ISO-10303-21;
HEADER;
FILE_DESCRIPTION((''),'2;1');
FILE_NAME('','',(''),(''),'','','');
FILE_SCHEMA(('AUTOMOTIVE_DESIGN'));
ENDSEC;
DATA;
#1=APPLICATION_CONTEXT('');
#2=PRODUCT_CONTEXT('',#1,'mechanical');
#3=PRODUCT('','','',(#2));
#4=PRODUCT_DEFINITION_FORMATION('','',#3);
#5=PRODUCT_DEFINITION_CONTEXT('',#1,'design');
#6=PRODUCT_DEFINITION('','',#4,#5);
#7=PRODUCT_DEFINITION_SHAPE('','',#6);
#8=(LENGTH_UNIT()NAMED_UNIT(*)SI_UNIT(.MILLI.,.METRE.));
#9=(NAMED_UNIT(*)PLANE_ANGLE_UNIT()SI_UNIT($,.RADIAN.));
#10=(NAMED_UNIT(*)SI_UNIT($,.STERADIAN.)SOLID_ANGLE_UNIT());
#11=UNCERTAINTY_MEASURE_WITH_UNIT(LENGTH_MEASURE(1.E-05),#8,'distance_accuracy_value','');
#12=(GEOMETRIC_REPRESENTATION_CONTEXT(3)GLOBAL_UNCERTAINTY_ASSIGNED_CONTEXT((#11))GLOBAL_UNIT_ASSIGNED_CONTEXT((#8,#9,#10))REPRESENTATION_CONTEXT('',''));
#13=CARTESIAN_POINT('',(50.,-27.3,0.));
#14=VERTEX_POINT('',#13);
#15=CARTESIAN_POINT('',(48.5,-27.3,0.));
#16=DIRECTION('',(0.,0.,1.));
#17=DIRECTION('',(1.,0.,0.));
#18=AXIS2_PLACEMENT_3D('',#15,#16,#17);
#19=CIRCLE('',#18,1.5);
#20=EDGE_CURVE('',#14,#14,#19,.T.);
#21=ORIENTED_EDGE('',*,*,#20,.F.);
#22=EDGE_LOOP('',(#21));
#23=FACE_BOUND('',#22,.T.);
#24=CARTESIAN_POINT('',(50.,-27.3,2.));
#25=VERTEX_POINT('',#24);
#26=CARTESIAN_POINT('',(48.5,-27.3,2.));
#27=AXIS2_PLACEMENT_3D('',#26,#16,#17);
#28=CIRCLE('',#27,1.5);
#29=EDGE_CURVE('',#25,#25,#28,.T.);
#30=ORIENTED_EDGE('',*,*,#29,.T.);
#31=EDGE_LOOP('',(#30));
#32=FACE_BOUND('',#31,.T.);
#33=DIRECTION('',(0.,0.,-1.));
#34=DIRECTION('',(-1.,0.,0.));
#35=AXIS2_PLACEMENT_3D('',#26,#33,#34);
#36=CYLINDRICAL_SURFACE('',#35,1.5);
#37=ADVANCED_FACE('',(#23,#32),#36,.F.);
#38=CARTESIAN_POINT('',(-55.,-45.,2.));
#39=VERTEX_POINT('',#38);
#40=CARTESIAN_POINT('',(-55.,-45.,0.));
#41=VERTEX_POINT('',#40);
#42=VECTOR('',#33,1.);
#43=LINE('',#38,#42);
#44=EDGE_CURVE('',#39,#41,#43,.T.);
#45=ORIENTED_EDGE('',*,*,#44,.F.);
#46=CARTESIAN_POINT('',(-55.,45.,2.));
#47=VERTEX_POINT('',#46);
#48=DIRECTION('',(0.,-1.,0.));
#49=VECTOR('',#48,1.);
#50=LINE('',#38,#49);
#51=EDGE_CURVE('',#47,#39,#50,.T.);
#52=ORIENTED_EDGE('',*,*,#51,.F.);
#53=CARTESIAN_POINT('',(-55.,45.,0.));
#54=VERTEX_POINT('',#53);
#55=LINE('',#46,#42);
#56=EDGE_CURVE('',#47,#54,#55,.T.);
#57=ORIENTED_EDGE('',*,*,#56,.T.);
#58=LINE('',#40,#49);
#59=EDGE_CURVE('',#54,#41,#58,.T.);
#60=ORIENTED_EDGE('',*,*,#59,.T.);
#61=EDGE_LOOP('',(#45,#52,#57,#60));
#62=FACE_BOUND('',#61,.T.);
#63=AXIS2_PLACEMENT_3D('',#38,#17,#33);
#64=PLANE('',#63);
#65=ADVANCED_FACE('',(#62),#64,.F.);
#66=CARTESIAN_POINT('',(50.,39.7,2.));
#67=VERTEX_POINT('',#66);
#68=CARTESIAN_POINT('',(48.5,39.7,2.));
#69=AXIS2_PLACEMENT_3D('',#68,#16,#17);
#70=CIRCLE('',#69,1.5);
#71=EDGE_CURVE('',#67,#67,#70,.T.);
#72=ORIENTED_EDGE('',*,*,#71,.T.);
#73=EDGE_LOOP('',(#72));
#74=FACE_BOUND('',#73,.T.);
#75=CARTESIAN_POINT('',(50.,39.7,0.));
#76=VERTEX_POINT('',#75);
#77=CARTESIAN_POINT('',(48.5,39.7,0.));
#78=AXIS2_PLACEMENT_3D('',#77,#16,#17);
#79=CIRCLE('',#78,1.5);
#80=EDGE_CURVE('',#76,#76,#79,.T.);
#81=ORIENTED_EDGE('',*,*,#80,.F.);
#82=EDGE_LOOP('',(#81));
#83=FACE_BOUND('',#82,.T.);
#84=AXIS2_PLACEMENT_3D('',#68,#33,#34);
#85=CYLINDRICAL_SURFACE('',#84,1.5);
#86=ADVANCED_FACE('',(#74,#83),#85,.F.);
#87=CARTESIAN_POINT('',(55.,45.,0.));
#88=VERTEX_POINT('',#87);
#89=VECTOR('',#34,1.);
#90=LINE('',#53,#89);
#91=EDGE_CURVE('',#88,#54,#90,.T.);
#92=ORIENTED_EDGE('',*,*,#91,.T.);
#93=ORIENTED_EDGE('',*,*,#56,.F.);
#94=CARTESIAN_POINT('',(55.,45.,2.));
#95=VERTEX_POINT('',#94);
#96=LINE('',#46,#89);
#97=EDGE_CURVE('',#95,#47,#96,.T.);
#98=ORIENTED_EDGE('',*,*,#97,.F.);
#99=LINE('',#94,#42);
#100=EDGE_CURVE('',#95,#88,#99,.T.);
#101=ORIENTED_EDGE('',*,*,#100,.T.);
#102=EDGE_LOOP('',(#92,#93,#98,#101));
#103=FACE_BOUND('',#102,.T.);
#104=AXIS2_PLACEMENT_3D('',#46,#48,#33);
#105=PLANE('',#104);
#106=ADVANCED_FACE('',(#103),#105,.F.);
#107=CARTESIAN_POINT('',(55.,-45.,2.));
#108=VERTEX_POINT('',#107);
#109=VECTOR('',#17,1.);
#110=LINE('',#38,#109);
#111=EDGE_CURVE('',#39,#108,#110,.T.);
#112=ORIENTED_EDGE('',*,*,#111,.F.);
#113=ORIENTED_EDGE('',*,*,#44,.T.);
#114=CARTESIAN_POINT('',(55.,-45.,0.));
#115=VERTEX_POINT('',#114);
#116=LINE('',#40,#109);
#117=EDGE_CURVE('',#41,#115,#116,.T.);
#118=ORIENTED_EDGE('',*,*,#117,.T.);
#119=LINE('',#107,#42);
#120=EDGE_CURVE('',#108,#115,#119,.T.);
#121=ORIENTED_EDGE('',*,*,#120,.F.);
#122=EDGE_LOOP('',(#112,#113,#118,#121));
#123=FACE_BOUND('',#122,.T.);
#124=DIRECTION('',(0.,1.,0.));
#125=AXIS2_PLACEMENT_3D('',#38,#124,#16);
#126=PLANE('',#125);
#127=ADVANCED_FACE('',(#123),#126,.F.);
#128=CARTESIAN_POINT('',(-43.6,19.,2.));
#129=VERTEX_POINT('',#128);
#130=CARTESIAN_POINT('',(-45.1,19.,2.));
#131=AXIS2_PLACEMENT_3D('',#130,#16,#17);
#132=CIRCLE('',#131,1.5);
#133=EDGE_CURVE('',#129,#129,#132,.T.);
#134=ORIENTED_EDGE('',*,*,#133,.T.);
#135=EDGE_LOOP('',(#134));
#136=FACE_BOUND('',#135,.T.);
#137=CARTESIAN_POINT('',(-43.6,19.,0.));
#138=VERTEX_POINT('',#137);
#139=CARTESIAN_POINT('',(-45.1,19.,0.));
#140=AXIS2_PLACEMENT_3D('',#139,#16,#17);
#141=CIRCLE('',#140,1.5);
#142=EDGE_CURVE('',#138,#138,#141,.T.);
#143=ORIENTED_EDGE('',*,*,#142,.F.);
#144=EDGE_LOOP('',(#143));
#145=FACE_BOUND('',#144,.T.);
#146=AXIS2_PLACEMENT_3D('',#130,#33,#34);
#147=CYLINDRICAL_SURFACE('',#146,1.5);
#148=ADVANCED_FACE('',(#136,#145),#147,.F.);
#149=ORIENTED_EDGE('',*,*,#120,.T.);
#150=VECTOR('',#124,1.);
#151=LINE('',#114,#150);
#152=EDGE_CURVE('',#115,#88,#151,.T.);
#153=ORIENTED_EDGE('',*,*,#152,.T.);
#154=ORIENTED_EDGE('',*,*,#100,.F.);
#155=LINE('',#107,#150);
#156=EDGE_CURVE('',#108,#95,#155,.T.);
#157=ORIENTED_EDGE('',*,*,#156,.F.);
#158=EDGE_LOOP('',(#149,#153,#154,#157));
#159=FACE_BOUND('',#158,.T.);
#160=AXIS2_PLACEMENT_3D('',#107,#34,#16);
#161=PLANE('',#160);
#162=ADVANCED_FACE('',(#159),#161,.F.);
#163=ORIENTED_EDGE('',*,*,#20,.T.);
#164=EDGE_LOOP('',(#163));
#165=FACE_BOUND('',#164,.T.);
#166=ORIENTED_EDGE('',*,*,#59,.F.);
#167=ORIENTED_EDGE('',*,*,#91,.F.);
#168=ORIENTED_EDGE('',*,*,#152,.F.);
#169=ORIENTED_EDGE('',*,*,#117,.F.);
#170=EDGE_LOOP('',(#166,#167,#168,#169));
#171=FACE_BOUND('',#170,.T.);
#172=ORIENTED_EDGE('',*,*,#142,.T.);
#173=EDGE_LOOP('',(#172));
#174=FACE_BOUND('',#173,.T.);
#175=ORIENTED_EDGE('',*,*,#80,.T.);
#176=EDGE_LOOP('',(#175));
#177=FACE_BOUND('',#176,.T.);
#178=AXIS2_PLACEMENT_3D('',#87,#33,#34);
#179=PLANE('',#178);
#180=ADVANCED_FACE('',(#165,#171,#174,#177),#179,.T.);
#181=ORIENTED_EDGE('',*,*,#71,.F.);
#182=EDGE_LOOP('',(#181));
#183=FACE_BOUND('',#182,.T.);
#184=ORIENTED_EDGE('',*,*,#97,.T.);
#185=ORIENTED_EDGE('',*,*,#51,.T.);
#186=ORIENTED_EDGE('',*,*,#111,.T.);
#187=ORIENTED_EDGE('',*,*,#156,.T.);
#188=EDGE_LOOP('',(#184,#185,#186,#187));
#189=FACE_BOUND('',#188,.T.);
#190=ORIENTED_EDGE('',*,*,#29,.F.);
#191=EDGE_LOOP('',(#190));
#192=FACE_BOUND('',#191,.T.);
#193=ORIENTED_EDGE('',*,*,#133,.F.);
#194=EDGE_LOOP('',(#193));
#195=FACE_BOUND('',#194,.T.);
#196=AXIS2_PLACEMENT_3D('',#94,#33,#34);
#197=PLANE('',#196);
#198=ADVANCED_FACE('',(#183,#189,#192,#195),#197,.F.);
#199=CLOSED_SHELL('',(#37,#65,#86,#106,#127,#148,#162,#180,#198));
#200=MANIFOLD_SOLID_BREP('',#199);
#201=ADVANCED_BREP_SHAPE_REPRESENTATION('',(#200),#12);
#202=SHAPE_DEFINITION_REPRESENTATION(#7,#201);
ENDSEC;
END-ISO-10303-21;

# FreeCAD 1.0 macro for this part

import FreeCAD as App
import Part
import Sketcher

V = App.Vector


def add_polygon(sketch, points):
    """Adds a closed chain of lines whose ends are joined by coincident constraints."""
    first, n = sketch.GeometryCount, len(points)
    for a, b in zip(points, points[1:] + points[:1]):
        sketch.addGeometry(Part.LineSegment(App.Vector(*a, 0), App.Vector(*b, 0)), False)
    for i in range(n):
        sketch.addConstraint(Sketcher.Constraint("Coincident", first + i, 2, first + (i + 1) % n, 1))

doc = App.newDocument("Part")
body = doc.addObject("PartDesign::Body", "Body")

# Sketch on XY plane
sketch1 = body.newObject("Sketcher::SketchObject", "Sketch")
sketch1.AttachmentSupport = (doc.getObject("XY_Plane"), [""])
sketch1.MapMode = "FlatFace"
add_polygon(sketch1, [(-55, 45), (-55, -45), (55, -45), (55, 45)])  # lines 0-3
sketch1.addGeometry(Part.Circle(V(48.5, -27.3, 0), V(0, 0, 1), 1.5), False)  # 4
sketch1.addGeometry(Part.Circle(V(-45.1, 19, 0), V(0, 0, 1), 1.5), False)  # 5
sketch1.addGeometry(Part.Circle(V(48.5, 39.7, 0), V(0, 0, 1), 1.5), False)  # 6
sketch1.addConstraint(Sketcher.Constraint("Vertical", 0))
sketch1.addConstraint(Sketcher.Constraint("Horizontal", 1))
sketch1.addConstraint(Sketcher.Constraint("Vertical", 2))
sketch1.addConstraint(Sketcher.Constraint("Horizontal", 3))
sketch1.addConstraint(Sketcher.Constraint("Equal", 4, 5))
sketch1.addConstraint(Sketcher.Constraint("Equal", 5, 6))
sketch1.addConstraint(Sketcher.Constraint("Symmetric", 0, 2, 2, 2, -1, 1))
sketch1.addConstraint(Sketcher.Constraint("Vertical", 4, 3, 6, 3))
sketch1.addConstraint(Sketcher.Constraint("Diameter", 4, 3.0))
sketch1.addConstraint(Sketcher.Constraint("DistanceX", 1, 1, 1, 2, 110.0))
sketch1.addConstraint(Sketcher.Constraint("DistanceY", 0, 2, 0, 1, 90.0))
sketch1.addConstraint(Sketcher.Constraint("DistanceY", -1, 1, 5, 3, 19.0))
sketch1.addConstraint(Sketcher.Constraint("DistanceY", 4, 3, 6, 3, 67.0))
sketch1.addConstraint(Sketcher.Constraint("DistanceX", -1, 1, 4, 3, 48.5))
sketch1.addConstraint(Sketcher.Constraint("DistanceY", 4, 3, -1, 1, 27.3))
sketch1.addConstraint(Sketcher.Constraint("DistanceX", 5, 3, -1, 1, 45.1))
pad1 = body.newObject("PartDesign::Pad", "Pad")
pad1.Profile = sketch1
pad1.Length = 2

doc.recompute()
